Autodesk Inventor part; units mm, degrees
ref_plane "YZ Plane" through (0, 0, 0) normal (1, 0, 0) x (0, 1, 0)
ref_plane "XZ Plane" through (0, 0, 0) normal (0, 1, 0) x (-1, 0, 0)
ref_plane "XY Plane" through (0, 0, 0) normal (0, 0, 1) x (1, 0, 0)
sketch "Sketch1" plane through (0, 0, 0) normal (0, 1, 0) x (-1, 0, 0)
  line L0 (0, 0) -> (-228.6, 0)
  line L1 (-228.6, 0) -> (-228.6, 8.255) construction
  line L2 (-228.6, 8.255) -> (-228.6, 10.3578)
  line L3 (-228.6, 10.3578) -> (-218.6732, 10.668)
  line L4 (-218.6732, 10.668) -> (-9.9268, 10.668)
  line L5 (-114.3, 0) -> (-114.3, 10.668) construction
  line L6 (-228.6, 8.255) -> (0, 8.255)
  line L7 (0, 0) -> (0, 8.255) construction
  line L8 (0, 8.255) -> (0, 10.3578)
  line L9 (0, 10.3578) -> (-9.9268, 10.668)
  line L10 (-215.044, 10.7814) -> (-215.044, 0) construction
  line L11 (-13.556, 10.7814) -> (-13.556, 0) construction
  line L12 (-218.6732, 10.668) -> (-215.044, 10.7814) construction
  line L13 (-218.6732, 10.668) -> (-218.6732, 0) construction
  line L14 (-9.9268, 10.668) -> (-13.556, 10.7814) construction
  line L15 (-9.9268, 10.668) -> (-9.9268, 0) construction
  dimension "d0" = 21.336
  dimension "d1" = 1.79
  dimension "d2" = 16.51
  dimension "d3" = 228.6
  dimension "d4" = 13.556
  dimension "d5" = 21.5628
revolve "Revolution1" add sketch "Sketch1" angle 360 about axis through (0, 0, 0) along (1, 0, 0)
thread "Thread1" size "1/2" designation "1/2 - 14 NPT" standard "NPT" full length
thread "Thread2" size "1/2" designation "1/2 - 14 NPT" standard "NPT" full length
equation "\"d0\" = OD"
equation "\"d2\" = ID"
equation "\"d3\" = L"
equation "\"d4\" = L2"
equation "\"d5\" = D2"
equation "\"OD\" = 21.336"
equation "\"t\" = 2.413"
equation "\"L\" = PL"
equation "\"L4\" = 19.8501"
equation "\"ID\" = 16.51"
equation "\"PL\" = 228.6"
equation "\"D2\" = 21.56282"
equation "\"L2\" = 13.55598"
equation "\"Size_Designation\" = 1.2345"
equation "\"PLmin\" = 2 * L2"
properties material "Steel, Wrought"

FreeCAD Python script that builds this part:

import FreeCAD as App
import Part
import Sketcher
from FreeCAD import Vector
Q = App.Units.Quantity

doc = App.newDocument("Part")
params = doc.addObject("Spreadsheet::Sheet", "Params")
for row, (alias, value) in enumerate([
    ("sketch1_width", "9 in"),
    ("sketch1_length", "0.391 in"),
    ("revolution_angle", "360 deg"),
], start=1):
    params.set(f"A{row}", alias)
    params.set(f"B{row}", "=" + value)
    params.setAlias(f"B{row}", alias)

body = doc.addObject("PartDesign::Body", "Body")

# Sketch on XZ plane
sketch1 = doc.addObject("Sketcher::SketchObject", "Sketch")
body.addObject(sketch1)
sketch1.AttachmentSupport = (doc.XZ_Plane, [""])
sketch1.MapMode = "FlatFace"
sketch1.addGeometry([
    Part.LineSegment(Vector(228.6, 10.4, 0), Vector(228.6, 8.3, 0)),  # 0
    Part.LineSegment(Vector(228.6, 8.3, 0), Vector(0, 8.3, 0)),  # 1
    Part.LineSegment(Vector(0, 8.3, 0), Vector(0, 10.4, 0)),  # 2
    Part.LineSegment(Vector(0, 10.4, 0), Vector(9.9, 10.7, 0)),  # 3
    Part.LineSegment(Vector(9.9, 10.7, 0), Vector(218.7, 10.7, 0)),  # 4
    Part.LineSegment(Vector(218.7, 10.7, 0), Vector(228.6, 10.4, 0)),  # 5
], False)
sketch1.addConstraint([
    Sketcher.Constraint("Coincident", 0, 2, 1, 1),
    Sketcher.Constraint("Coincident", 1, 2, 2, 1),
    Sketcher.Constraint("Coincident", 2, 2, 3, 1),
    Sketcher.Constraint("Coincident", 3, 2, 4, 1),
    Sketcher.Constraint("Coincident", 4, 2, 5, 1),
    Sketcher.Constraint("Coincident", 5, 2, 0, 1),
    Sketcher.Constraint("Vertical", 0),
    Sketcher.Constraint("Horizontal", 1),
    Sketcher.Constraint("Vertical", 2),
    Sketcher.Constraint("Horizontal", 4),
    Sketcher.Constraint("PointOnObject", 1, 2, -2),
    Sketcher.Constraint("Horizontal", 2, 2, 5, 2),
    Sketcher.Constraint("Equal", 3, 5),
    Sketcher.Constraint("DistanceX", 1, 2, 1, 1, Q("9 in")),
    Sketcher.Constraint("Angle", 3, Q("1.7898 deg")),
    Sketcher.Constraint("DistanceY", -1, 1, 3, 2, Q("0.42 in")),
    Sketcher.Constraint("Distance", 3, Q("0.391 in")),
    Sketcher.Constraint("DistanceY", -1, 1, 0, 2, Q("0.325 in")),
])
sketch1.setExpression("Constraints[13]", "Params.sketch1_width")
sketch1.setExpression("Constraints[16]", "Params.sketch1_length")
revolution = doc.addObject("PartDesign::Revolution", "Revolution")
body.addObject(revolution)
revolution.Profile = sketch1
revolution.ReferenceAxis = (sketch1, ["H_Axis"])
revolution.setExpression("Angle", "Params.revolution_angle")

doc.recompute()
